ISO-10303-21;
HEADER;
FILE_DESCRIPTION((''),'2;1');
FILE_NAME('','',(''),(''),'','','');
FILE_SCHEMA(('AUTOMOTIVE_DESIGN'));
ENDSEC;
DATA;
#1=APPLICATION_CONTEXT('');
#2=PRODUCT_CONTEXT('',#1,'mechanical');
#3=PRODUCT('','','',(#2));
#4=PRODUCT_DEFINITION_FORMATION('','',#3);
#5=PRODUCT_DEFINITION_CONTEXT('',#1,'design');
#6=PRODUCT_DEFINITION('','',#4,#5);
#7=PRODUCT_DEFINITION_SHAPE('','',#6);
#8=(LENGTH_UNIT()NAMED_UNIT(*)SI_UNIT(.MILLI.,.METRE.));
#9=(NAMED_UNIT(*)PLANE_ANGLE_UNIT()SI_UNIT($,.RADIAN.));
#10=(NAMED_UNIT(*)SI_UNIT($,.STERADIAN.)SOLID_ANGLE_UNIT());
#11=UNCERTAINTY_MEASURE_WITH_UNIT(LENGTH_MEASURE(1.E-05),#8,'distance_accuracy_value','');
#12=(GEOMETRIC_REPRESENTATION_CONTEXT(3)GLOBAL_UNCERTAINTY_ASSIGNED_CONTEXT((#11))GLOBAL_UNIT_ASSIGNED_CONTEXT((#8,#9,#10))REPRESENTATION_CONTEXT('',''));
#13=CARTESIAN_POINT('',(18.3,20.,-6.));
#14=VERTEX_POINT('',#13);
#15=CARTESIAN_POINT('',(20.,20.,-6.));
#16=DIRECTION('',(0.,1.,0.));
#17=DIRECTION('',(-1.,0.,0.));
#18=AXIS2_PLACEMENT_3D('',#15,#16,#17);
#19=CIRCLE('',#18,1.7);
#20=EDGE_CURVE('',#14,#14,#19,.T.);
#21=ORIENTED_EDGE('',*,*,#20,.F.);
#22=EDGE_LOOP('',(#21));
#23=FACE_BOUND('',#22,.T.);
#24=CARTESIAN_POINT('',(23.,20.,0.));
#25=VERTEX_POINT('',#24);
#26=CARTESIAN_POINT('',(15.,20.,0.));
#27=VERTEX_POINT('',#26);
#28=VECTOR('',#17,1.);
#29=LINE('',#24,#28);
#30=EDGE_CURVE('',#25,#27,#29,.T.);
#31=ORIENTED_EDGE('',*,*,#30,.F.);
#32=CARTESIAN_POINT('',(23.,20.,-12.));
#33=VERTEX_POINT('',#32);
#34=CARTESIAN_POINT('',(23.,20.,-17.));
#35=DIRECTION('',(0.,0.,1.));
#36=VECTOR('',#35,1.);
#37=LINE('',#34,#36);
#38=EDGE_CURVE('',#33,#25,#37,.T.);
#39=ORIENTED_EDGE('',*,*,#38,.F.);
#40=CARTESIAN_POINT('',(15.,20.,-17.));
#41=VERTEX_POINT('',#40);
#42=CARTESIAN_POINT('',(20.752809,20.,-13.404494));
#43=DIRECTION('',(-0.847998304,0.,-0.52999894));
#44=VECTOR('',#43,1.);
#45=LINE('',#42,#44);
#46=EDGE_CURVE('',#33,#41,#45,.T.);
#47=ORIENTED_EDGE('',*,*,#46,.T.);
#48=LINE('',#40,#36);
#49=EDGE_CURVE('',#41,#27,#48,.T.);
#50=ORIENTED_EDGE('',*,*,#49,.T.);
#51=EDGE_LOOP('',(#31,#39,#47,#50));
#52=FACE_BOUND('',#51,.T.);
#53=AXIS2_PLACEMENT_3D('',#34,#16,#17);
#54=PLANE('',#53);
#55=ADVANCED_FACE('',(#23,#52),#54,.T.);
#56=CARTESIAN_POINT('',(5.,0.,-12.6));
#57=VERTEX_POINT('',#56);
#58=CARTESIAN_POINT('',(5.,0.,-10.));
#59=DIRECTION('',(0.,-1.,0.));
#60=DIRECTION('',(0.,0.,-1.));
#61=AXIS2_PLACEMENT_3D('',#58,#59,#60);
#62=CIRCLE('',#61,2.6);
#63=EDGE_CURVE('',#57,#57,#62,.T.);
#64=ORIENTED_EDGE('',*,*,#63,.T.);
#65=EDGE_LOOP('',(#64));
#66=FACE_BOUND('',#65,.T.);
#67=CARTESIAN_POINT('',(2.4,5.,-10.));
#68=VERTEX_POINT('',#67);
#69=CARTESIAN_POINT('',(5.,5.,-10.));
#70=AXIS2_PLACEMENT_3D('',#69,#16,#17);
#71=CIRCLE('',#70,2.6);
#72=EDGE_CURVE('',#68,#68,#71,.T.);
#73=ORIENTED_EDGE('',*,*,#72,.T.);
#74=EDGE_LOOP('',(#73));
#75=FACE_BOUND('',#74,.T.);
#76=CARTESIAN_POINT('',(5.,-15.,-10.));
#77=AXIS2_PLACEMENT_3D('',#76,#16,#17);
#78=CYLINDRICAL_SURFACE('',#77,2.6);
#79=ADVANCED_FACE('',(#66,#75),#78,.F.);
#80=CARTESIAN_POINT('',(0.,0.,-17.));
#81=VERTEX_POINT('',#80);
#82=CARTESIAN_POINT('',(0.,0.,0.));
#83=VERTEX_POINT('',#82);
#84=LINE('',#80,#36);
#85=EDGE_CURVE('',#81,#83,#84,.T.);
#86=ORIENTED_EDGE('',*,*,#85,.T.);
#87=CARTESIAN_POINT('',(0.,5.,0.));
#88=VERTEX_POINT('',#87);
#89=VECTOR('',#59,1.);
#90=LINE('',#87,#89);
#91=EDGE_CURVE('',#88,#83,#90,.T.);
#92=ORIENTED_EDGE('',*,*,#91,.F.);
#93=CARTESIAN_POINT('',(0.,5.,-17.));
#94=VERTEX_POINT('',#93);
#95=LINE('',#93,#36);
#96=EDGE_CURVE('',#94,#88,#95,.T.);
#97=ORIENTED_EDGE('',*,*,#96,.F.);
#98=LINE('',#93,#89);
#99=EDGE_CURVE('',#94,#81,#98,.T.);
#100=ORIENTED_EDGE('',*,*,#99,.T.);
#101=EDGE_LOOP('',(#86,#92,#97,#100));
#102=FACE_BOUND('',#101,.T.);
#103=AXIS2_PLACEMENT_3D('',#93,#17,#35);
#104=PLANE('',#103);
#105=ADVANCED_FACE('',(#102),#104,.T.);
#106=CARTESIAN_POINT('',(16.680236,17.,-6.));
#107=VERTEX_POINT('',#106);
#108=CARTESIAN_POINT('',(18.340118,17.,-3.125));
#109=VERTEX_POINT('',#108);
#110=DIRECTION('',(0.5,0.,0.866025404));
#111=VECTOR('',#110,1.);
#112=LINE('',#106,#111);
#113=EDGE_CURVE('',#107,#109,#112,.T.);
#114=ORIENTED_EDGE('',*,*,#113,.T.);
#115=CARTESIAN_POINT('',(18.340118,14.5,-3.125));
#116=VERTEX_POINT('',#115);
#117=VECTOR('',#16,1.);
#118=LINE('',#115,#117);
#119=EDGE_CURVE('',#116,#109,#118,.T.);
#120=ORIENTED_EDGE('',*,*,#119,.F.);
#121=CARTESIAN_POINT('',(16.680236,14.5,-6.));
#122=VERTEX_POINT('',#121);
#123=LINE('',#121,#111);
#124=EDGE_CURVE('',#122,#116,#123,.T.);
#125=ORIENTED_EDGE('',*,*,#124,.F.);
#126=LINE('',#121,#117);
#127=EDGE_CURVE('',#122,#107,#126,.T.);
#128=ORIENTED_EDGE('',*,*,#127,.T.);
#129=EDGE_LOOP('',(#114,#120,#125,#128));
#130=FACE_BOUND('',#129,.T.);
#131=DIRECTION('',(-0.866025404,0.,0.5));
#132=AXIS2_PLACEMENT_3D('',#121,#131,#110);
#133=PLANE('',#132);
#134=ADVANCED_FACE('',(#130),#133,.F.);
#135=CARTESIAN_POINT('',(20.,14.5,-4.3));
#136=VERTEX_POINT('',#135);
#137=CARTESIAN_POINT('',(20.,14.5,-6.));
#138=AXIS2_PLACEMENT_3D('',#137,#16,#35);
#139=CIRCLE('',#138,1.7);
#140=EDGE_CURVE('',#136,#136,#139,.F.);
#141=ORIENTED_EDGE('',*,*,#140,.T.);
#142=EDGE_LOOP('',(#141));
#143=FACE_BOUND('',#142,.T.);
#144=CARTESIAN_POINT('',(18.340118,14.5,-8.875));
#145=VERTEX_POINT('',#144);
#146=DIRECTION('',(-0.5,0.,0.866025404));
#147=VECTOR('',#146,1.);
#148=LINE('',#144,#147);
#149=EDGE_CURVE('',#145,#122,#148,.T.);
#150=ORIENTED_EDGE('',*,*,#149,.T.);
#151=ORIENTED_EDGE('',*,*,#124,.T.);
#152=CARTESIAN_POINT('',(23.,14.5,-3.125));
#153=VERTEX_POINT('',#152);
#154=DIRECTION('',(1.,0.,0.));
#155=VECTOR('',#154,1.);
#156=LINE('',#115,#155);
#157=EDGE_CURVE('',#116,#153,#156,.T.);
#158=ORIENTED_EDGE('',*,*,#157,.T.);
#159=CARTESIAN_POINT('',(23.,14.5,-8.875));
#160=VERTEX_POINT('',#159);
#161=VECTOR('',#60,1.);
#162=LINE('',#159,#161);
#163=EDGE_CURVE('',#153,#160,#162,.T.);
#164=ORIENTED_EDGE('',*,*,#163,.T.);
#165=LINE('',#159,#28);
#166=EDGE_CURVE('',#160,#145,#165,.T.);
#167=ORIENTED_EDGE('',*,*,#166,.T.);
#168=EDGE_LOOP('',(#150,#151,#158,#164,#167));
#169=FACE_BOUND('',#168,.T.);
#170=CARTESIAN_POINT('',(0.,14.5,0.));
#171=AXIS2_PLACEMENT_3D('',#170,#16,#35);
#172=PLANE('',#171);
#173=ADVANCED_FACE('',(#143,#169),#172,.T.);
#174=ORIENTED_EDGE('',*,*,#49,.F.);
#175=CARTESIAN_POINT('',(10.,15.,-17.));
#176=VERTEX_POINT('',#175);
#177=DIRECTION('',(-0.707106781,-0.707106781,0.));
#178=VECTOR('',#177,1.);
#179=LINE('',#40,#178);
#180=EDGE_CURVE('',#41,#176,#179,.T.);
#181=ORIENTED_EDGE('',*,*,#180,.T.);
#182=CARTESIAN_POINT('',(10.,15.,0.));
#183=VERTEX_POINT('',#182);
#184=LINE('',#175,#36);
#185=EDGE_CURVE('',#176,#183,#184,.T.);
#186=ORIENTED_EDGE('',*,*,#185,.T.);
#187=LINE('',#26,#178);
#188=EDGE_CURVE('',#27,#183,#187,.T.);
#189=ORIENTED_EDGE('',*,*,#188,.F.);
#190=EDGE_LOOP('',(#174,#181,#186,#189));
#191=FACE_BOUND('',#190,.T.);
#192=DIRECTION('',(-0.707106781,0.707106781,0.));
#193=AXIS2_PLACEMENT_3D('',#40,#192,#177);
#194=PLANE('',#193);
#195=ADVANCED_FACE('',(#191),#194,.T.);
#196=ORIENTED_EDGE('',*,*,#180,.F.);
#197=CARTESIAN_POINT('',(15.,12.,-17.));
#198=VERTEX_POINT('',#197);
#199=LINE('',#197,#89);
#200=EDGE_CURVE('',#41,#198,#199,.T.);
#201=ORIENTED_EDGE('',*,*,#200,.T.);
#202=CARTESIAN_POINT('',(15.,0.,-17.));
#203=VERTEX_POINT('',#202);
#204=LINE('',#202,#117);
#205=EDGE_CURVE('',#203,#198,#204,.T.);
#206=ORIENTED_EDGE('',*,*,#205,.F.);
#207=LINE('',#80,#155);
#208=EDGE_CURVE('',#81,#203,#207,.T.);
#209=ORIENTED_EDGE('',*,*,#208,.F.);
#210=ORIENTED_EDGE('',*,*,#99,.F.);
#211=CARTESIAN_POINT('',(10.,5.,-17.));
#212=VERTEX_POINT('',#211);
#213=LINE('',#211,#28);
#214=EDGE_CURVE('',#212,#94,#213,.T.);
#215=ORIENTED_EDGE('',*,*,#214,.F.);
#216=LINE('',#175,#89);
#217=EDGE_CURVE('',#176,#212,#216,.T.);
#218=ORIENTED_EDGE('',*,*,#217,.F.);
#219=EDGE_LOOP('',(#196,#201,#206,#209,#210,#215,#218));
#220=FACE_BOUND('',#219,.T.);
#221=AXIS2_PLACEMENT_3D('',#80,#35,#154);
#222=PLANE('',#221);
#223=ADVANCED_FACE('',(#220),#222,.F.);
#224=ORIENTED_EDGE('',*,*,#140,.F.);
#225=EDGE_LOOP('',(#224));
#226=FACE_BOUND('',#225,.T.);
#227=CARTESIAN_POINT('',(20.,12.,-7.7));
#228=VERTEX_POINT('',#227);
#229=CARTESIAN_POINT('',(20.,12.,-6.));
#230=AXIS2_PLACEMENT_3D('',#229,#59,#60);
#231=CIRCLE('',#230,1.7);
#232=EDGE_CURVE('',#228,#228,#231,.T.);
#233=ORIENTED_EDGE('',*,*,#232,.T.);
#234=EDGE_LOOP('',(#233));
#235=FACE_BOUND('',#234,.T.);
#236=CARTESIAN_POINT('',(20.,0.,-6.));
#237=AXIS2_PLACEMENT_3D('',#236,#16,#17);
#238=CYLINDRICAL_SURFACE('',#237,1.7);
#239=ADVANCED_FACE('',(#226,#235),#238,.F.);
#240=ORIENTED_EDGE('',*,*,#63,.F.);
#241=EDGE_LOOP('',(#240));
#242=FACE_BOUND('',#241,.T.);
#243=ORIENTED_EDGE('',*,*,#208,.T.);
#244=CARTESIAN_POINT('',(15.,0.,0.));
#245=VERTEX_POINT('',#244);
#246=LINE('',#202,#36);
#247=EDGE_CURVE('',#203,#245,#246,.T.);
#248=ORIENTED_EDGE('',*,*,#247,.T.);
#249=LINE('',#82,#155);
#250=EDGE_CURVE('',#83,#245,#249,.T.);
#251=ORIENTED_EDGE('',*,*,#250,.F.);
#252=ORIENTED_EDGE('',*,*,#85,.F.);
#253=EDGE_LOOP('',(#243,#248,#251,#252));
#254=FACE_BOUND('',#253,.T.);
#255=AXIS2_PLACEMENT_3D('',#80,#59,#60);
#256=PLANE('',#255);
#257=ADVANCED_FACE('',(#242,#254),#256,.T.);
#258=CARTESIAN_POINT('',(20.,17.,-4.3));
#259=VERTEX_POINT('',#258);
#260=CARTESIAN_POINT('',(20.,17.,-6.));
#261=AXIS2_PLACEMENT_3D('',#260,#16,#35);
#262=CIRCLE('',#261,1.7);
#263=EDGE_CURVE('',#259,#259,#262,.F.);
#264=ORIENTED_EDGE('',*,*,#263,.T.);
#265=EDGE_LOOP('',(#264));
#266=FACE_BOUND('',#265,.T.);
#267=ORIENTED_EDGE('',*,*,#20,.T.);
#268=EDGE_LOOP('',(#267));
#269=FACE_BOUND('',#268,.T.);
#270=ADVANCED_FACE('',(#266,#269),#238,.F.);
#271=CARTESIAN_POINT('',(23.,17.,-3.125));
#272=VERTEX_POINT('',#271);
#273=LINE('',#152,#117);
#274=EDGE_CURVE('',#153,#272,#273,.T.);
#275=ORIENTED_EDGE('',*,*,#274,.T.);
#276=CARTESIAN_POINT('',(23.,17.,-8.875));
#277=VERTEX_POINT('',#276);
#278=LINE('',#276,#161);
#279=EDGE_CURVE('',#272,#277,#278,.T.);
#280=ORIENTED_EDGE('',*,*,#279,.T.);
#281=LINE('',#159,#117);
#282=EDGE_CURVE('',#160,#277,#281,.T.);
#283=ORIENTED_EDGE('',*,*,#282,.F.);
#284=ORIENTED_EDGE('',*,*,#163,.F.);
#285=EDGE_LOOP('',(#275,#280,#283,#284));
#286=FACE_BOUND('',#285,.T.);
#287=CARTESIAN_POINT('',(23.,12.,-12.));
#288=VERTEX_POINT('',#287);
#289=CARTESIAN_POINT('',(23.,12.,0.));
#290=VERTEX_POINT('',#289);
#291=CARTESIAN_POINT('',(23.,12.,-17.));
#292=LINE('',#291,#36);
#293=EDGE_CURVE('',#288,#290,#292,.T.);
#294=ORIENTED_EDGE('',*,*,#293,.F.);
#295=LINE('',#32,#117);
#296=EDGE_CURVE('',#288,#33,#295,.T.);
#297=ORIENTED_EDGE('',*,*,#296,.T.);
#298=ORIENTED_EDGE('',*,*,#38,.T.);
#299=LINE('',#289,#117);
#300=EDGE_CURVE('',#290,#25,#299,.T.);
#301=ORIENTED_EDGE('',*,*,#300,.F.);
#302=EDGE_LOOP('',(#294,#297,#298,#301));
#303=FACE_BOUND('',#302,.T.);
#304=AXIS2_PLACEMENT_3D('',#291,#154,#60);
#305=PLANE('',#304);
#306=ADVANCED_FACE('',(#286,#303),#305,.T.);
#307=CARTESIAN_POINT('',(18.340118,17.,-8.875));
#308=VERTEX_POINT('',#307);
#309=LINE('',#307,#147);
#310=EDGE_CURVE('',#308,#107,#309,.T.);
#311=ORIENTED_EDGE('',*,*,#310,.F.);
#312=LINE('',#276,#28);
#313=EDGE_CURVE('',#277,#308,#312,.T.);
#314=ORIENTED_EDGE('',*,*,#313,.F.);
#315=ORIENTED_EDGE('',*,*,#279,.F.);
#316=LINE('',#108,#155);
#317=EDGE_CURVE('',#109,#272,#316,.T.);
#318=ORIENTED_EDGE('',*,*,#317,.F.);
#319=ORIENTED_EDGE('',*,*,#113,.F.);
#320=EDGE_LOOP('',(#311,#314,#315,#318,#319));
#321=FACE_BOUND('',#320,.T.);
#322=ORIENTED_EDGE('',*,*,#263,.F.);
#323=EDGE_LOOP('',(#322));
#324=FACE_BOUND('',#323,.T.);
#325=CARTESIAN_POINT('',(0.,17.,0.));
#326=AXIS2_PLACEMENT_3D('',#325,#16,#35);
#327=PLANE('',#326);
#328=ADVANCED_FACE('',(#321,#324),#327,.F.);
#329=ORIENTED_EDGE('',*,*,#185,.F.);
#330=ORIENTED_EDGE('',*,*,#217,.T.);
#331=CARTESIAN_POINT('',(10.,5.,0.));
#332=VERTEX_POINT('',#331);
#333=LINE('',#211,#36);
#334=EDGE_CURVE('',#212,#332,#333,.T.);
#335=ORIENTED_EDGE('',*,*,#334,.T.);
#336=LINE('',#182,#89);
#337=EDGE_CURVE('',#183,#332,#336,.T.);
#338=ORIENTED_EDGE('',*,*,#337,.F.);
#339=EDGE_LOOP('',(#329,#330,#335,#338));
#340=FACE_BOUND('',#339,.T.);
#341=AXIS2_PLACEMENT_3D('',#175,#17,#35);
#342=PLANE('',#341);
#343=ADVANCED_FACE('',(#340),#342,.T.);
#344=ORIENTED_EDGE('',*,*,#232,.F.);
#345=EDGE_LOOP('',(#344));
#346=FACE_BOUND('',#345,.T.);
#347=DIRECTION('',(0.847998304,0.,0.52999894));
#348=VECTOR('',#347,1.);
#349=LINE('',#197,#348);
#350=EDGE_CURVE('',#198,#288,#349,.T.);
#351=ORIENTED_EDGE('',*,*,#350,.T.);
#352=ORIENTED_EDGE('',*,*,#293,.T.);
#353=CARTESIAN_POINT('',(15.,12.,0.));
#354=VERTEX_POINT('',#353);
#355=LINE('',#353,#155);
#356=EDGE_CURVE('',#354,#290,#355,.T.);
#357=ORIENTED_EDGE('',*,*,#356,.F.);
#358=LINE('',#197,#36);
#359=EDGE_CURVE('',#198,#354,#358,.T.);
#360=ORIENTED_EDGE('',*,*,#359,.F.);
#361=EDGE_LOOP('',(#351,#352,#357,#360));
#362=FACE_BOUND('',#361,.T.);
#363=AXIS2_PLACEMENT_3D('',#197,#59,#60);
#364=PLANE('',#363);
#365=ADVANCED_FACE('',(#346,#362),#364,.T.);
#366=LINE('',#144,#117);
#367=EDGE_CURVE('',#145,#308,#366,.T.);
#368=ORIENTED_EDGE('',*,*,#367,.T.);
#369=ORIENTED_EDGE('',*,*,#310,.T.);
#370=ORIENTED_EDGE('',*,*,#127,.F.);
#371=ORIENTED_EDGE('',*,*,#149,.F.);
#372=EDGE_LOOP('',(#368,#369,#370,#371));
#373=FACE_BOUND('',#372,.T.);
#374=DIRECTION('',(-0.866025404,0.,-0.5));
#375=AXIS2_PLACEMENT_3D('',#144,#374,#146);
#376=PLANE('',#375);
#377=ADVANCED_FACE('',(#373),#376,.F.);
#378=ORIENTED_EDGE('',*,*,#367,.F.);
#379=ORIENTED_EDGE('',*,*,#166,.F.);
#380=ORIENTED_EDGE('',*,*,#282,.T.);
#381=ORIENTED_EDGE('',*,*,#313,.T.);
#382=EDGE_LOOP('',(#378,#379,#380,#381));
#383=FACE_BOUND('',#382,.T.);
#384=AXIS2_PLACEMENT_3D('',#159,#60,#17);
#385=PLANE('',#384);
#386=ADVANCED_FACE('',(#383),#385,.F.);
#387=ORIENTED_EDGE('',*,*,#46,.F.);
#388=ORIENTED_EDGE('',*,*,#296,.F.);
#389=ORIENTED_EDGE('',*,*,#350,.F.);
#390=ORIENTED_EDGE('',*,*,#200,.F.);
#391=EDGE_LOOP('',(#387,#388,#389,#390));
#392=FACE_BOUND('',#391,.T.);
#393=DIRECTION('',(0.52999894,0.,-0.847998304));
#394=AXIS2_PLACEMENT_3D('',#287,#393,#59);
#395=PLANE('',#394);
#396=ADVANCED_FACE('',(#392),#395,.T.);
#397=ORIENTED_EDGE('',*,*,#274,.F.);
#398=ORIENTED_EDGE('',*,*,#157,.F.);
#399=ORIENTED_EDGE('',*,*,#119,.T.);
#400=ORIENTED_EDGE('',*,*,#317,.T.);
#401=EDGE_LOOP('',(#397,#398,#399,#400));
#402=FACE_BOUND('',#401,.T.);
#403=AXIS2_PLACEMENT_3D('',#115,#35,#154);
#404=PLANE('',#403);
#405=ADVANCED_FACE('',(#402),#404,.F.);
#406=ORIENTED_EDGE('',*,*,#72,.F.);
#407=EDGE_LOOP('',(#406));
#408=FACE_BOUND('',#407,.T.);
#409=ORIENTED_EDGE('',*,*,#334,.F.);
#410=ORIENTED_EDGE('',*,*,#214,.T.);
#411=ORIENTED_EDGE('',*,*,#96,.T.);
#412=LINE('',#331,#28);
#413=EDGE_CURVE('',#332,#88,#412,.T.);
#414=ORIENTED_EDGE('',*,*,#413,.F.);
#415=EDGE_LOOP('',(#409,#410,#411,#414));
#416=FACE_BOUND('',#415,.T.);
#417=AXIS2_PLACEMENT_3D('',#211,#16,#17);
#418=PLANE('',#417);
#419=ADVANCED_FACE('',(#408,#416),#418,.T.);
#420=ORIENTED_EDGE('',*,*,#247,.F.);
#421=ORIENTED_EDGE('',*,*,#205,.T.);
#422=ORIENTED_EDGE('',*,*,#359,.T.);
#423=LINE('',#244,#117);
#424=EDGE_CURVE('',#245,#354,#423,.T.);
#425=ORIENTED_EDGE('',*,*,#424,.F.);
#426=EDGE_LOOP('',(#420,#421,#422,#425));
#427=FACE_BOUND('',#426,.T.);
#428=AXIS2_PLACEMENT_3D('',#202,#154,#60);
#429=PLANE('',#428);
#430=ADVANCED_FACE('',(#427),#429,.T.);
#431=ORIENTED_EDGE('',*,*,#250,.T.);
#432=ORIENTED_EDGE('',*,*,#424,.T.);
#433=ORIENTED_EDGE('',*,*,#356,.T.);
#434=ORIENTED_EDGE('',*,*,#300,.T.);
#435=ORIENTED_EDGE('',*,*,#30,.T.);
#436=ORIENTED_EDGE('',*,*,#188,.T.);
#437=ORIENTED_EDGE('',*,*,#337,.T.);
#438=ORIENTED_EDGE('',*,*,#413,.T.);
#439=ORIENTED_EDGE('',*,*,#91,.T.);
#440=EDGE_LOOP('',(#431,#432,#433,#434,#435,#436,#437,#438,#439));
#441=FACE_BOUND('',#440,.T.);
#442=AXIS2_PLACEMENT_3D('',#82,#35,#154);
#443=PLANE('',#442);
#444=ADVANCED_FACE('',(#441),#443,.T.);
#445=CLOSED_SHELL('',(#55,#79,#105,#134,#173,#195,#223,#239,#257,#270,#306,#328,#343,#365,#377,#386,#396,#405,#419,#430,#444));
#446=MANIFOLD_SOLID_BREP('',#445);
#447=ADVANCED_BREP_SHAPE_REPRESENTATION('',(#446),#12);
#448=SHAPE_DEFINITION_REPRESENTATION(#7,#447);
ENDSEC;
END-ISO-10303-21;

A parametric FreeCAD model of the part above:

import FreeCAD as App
import Part
import Sketcher
from FreeCAD import Vector
Q = App.Units.Quantity


def edges_at(feature, points):
    """Names of the edges that pass closest to the given points."""
    edges = feature.Shape.Edges
    near = lambda p: min(range(len(edges)), key=lambda i: edges[i].distToShape(Part.Vertex(*p))[0])
    return sorted({f"Edge{near(p) + 1}" for p in points})

doc = App.newDocument("Part")
body = doc.addObject("PartDesign::Body", "Body")

sketch1 = doc.addObject("Sketcher::SketchObject", "Sketch")
body.addObject(sketch1)
sketch1.AttachmentSupport = (doc.XY_Plane, [""])
sketch1.MapMode = "FlatFace"
sketch1.addGeometry([
    Part.LineSegment(Vector(0, 0, 0), Vector(15, 0, 0)),
    Part.LineSegment(Vector(15, 0, 0), Vector(15, 12, 0)),
    Part.LineSegment(Vector(15, 12, 0), Vector(23, 12, 0)),
    Part.LineSegment(Vector(23, 12, 0), Vector(23, 20, 0)),
    Part.LineSegment(Vector(23, 20, 0), Vector(15, 20, 0)),
    Part.LineSegment(Vector(15, 20, 0), Vector(10, 15, 0)),
    Part.LineSegment(Vector(10, 15, 0), Vector(10, 5, 0)),
    Part.LineSegment(Vector(10, 5, 0), Vector(0, 5, 0)),
    Part.LineSegment(Vector(0, 5, 0), Vector(0, 0, 0)),
], False)
sketch1.addConstraint([
    Sketcher.Constraint("Coincident", 0, 2, 1, 1),
    Sketcher.Constraint("Coincident", 1, 2, 2, 1),
    Sketcher.Constraint("Coincident", 2, 2, 3, 1),
    Sketcher.Constraint("Coincident", 3, 2, 4, 1),
    Sketcher.Constraint("Coincident", 4, 2, 5, 1),
    Sketcher.Constraint("Coincident", 5, 2, 6, 1),
    Sketcher.Constraint("Coincident", 6, 2, 7, 1),
    Sketcher.Constraint("Coincident", 7, 2, 8, 1),
    Sketcher.Constraint("Coincident", 8, 2, 0, 1),
    Sketcher.Constraint("Horizontal", 0),
    Sketcher.Constraint("Vertical", 1),
    Sketcher.Constraint("Horizontal", 2),
    Sketcher.Constraint("Vertical", 3),
    Sketcher.Constraint("Horizontal", 4),
    Sketcher.Constraint("Vertical", 6),
    Sketcher.Constraint("Horizontal", 7),
    Sketcher.Constraint("Vertical", 8),
    Sketcher.Constraint("Coincident", 8, 2, -1, 1),
    Sketcher.Constraint("Vertical", 1, 2, 4, 2),
    Sketcher.Constraint("Equal", 4, 3),
    Sketcher.Constraint("Equal", 7, 6),
    Sketcher.Constraint("DistanceX", 0, 1, 0, 2, Q("15 mm")),
    Sketcher.Constraint("DistanceX", 2, 1, 2, 2, Q("8 mm")),
    Sketcher.Constraint("DistanceX", 7, 2, 7, 1, Q("10 mm")),
    Sketcher.Constraint("DistanceY", 1, 1, 1, 2, Q("12 mm")),
    Sketcher.Constraint("DistanceY", 8, 2, 8, 1, Q("5 mm")),
])
pad1 = doc.addObject("PartDesign::Pad", "Pad")
body.addObject(pad1)
pad1.Profile = sketch1
pad1.Length = 17
pad1.Reversed = True

sketch2 = doc.addObject("Sketcher::SketchObject", "Sketch001")
body.addObject(sketch2)
sketch2.AttachmentSupport = (doc.XZ_Plane, [""])
sketch2.MapMode = "FlatFace"
sketch2.AttachmentOffset = App.Placement(Vector(0, 0, -5), App.Rotation())
sketch2.addGeometry(Part.Circle(Vector(5, -10, 0), Vector(0, 0, 1), 2.6), False)
sketch2.addConstraint([
    Sketcher.Constraint("Diameter", 0, Q("5.2 mm")),
    Sketcher.Constraint("DistanceX", -1, 1, 0, 3, Q("5 mm")),
    Sketcher.Constraint("DistanceY", 0, 3, -1, 1, Q("10 mm")),
])
pocket1 = doc.addObject("PartDesign::Pocket", "Pocket")
body.addObject(pocket1)
pocket1.Profile = sketch2
pocket1.Length = 20
pocket1.Reversed = True
doc.recompute()

chamfer = doc.addObject("PartDesign::Chamfer", "Chamfer")
body.addObject(chamfer)
chamfer.Base = (pocket1, edges_at(pocket1, [(23, 16, -17)]))
chamfer.ChamferType = "Two distances"
chamfer.Size = 8
chamfer.Size2 = 5

sketch3 = doc.addObject("Sketcher::SketchObject", "Sketch002")
body.addObject(sketch3)
sketch3.AttachmentSupport = (doc.XZ_Plane, [""])
sketch3.MapMode = "FlatFace"
sketch3.AttachmentOffset = App.Placement(Vector(0, 0, -20), App.Rotation())
sketch3.addGeometry(Part.Circle(Vector(20, -6, 0), Vector(0, 0, 1), 1.7), False)
sketch3.addConstraint([
    Sketcher.Constraint("Diameter", 0, Q("3.4 mm")),
    Sketcher.Constraint("DistanceX", -1, 1, 0, 3, Q("20 mm")),
    Sketcher.Constraint("DistanceY", 0, 3, -1, 1, Q("6 mm")),
])
pocket2 = doc.addObject("PartDesign::Pocket", "Pocket001")
body.addObject(pocket2)
pocket2.Profile = sketch3
pocket2.Type = "ThroughAll"
pocket2.Reversed = True

sketch4 = doc.addObject("Sketcher::SketchObject", "Sketch003")
body.addObject(sketch4)
sketch4.AttachmentSupport = (doc.XZ_Plane, [""])
sketch4.MapMode = "FlatFace"
sketch4.AttachmentOffset = App.Placement(Vector(0, 0, -17), App.Rotation())
sketch4.addGeometry([
    Part.LineSegment(Vector(23, -8.875, 0), Vector(18.340118, -8.875, 0)),
    Part.LineSegment(Vector(18.340118, -8.875, 0), Vector(16.680236, -6, 0)),
    Part.LineSegment(Vector(16.680236, -6, 0), Vector(18.340118, -3.125, 0)),
    Part.LineSegment(Vector(18.340118, -3.125, 0), Vector(23, -3.125, 0)),
    Part.LineSegment(Vector(23, -3.125, 0), Vector(23, -8.875, 0)),
], False)
sketch4.addConstraint([
    Sketcher.Constraint("Coincident", 0, 2, 1, 1),
    Sketcher.Constraint("Coincident", 1, 2, 2, 1),
    Sketcher.Constraint("Coincident", 2, 2, 3, 1),
    Sketcher.Constraint("Coincident", 3, 2, 4, 1),
    Sketcher.Constraint("Coincident", 4, 2, 0, 1),
    Sketcher.Constraint("Horizontal", 0),
    Sketcher.Constraint("Horizontal", 3),
    Sketcher.Constraint("Vertical", 4),
    Sketcher.Constraint("Vertical", 0, 2, 2, 2),
    Sketcher.Constraint("Equal", 1, 2),
    Sketcher.Constraint("Angle", 1, Q("120 deg")),
    Sketcher.Constraint("DistanceY", 1, 2, -1, 1, Q("6 mm")),
    Sketcher.Constraint("DistanceX", -1, 1, 3, 2, Q("23 mm")),
    Sketcher.Constraint("DistanceY", 4, 2, 4, 1, Q("5.75 mm")),
    Sketcher.Constraint("DistanceX", 0, 2, 0, 1, Q("4.659882 mm")),
])
pocket3 = doc.addObject("PartDesign::Pocket", "Pocket002")
body.addObject(pocket3)
pocket3.Profile = sketch4
pocket3.Length = 2.5
pocket3.Reversed = True

doc.recompute()
